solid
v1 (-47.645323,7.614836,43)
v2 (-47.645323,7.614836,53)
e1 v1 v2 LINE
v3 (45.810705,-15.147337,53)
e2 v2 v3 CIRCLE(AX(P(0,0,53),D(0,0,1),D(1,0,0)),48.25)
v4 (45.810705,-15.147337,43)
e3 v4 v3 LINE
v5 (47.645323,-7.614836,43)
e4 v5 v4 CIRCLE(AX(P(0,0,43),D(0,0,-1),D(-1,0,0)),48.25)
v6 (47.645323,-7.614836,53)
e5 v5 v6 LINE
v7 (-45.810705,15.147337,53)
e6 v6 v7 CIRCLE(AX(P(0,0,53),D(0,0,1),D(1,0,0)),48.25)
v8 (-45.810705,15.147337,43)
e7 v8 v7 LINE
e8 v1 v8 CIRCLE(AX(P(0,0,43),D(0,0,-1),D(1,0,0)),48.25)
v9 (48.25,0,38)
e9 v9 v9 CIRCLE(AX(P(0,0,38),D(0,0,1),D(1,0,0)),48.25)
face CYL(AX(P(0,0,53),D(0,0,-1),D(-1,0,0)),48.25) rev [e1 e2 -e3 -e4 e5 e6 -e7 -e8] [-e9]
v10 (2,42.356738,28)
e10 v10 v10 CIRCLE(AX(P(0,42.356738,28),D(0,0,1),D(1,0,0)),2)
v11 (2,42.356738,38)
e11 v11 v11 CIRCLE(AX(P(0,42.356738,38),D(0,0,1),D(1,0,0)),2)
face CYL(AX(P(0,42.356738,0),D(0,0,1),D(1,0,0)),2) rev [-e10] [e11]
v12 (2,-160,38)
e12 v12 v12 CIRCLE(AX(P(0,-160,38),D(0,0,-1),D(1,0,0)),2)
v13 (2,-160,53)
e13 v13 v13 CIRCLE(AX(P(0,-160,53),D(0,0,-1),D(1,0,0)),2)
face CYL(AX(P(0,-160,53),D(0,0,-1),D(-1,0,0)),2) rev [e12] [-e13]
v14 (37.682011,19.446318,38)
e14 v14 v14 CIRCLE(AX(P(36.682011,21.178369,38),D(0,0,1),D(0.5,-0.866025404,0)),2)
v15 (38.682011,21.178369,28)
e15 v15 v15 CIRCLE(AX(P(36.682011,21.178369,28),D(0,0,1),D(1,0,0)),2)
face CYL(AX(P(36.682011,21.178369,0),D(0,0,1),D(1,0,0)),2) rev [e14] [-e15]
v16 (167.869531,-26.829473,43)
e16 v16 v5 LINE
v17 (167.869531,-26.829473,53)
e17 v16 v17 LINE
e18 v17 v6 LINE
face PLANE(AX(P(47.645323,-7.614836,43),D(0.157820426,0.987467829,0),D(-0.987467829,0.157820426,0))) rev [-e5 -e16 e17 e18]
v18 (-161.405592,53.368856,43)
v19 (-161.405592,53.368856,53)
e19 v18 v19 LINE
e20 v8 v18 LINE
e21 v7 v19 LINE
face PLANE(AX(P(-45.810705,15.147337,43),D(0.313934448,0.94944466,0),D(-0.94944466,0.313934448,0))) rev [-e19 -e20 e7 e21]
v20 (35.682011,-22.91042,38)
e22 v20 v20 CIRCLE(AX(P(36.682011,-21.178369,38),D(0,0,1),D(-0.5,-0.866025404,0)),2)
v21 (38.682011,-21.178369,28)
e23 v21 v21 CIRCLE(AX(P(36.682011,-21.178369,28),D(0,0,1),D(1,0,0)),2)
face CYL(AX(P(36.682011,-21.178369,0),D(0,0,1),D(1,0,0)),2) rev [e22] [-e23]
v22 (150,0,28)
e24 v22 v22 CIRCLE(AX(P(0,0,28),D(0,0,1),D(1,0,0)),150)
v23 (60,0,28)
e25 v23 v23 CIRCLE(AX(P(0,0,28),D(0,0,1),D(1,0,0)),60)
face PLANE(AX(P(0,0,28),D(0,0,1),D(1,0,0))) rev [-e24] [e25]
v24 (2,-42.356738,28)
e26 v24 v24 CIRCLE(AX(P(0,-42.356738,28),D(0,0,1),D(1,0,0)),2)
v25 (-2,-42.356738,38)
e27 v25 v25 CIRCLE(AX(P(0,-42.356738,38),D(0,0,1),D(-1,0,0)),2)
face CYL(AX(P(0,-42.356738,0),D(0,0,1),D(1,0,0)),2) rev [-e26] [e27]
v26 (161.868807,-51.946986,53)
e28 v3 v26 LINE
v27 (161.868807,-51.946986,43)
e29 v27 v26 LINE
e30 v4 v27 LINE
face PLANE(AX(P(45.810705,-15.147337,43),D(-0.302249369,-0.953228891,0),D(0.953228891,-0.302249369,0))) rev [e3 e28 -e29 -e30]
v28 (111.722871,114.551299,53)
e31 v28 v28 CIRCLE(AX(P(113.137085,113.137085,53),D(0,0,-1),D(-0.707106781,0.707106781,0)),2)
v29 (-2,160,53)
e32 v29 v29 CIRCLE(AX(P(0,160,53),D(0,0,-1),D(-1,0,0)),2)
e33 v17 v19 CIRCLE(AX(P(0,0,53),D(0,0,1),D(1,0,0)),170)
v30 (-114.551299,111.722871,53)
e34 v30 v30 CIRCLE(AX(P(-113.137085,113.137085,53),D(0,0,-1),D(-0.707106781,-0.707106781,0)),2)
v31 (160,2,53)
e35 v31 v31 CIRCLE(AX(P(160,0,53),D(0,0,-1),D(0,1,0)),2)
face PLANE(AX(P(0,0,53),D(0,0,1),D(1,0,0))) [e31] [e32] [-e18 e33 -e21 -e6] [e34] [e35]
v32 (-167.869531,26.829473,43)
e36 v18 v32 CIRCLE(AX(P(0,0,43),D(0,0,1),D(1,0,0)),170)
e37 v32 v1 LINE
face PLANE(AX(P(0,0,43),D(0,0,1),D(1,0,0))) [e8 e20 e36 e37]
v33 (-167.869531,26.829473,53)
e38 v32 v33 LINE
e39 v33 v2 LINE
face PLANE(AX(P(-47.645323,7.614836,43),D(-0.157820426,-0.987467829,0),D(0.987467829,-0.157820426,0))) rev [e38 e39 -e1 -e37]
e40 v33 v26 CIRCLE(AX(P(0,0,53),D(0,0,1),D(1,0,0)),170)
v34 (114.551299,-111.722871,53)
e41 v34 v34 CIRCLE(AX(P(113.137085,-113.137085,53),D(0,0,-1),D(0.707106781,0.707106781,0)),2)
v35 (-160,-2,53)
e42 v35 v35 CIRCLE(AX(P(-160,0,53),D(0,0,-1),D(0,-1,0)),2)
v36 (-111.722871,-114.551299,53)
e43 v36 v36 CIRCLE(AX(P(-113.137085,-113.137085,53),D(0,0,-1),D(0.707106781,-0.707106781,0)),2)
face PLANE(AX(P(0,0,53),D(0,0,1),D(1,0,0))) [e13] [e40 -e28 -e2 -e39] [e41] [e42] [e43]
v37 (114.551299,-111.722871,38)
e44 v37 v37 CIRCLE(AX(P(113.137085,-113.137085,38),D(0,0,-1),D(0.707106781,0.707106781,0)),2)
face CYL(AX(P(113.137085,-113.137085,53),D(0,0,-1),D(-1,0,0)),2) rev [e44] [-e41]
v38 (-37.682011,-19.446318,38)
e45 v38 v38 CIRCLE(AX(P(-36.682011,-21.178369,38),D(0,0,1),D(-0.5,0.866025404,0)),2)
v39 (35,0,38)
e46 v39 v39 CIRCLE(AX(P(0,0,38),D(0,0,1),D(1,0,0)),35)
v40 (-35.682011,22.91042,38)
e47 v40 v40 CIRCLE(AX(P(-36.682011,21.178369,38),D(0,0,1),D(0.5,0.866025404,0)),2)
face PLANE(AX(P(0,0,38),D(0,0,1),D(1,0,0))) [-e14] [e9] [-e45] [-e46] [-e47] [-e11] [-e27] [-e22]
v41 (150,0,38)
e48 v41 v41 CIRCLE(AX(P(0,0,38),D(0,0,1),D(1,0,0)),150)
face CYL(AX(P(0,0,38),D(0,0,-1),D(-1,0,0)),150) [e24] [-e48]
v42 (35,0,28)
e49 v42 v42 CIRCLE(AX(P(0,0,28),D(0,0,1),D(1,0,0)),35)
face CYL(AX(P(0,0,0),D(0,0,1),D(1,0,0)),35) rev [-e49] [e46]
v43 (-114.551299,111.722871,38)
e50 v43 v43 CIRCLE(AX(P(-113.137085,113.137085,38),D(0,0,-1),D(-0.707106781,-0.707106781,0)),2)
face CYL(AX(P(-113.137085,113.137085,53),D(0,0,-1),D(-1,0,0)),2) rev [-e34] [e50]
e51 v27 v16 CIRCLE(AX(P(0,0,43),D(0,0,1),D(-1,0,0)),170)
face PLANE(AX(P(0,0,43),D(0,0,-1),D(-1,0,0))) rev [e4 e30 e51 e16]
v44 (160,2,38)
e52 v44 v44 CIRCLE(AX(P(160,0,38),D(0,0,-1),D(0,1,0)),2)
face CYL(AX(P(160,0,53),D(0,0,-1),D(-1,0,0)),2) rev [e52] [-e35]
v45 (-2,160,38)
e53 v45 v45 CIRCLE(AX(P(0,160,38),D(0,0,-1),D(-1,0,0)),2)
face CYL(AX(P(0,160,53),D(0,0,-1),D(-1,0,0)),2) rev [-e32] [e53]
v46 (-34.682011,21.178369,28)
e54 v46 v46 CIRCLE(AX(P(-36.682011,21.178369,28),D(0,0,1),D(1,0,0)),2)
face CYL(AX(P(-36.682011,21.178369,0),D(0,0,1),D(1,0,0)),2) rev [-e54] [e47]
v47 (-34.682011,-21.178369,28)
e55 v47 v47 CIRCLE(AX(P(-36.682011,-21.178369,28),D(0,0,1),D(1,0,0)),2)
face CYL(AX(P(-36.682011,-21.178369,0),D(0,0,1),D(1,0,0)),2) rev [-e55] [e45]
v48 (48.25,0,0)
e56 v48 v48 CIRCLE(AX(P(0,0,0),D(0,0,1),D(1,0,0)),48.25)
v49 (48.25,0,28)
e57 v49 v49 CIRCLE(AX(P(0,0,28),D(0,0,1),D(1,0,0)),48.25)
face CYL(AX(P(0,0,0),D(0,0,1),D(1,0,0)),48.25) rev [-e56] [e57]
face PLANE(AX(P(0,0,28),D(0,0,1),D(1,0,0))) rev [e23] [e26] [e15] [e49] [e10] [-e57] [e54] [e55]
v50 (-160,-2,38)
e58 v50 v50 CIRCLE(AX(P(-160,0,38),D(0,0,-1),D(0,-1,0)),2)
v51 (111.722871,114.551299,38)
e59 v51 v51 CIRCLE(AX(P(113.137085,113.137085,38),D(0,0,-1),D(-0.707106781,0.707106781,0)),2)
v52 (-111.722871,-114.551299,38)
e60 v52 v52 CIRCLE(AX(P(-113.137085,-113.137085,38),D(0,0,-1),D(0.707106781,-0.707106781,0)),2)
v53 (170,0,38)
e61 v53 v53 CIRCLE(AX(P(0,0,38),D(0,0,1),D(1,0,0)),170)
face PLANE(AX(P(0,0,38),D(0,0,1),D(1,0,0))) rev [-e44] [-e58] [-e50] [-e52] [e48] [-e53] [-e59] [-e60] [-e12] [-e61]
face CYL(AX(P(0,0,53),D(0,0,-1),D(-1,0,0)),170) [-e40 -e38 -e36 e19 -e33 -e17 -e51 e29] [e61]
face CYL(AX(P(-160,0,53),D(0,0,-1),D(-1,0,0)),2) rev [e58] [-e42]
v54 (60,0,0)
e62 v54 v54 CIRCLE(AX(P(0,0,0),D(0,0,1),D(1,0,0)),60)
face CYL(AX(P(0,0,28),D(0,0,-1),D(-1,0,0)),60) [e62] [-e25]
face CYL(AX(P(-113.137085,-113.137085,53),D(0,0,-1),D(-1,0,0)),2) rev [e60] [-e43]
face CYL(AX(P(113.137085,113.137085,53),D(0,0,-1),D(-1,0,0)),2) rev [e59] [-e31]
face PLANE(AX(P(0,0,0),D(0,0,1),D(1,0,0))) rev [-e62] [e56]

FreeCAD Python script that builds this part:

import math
import FreeCAD as App
import Part
import Sketcher
from FreeCAD import Vector
Q = App.Units.Quantity

doc = App.newDocument("Part")
body = doc.addObject("PartDesign::Body", "Body")

sketch1 = doc.addObject("Sketcher::SketchObject", "Sketch")
body.addObject(sketch1)
sketch1.AttachmentSupport = (doc.XY_Plane, [""])
sketch1.MapMode = "FlatFace"
sketch1.addGeometry(Part.Circle(Vector(0, 0, 0), Vector(0, 0, 1), 60), False)
sketch1.addConstraint([
    Sketcher.Constraint("Coincident", 0, 3, -1, 1),
    Sketcher.Constraint("Diameter", 0, Q("120 mm")),
])
pad1 = doc.addObject("PartDesign::Pad", "Pad")
body.addObject(pad1)
pad1.Profile = sketch1
pad1.Length = 28

sketch2 = doc.addObject("Sketcher::SketchObject", "Sketch001")
body.addObject(sketch2)
sketch2.AttachmentSupport = (doc.XY_Plane, [""])
sketch2.MapMode = "FlatFace"
sketch2.AttachmentOffset = App.Placement(Vector(0, 0, 28), App.Rotation())
sketch2.addGeometry(Part.Circle(Vector(0, 0, 0), Vector(0, 0, 1), 48), False)
sketch2.addConstraint([
    Sketcher.Constraint("Coincident", 0, 3, -1, 1),
    Sketcher.Constraint("Diameter", 0, Q("96.5 mm")),
])
pocket1 = doc.addObject("PartDesign::Pocket", "Pocket")
body.addObject(pocket1)
pocket1.Profile = sketch2
pocket1.Type = "ThroughAll"

sketch3 = doc.addObject("Sketcher::SketchObject", "Sketch002")
body.addObject(sketch3)
sketch3.AttachmentSupport = (doc.XY_Plane, [""])
sketch3.MapMode = "FlatFace"
sketch3.AttachmentOffset = App.Placement(Vector(0, 0, 28), App.Rotation())
sketch3.addGeometry(Part.Circle(Vector(0, 0, 0), Vector(0, 0, 1), 150), False)
sketch3.addConstraint([
    Sketcher.Constraint("Coincident", 0, 3, -1, 1),
    Sketcher.Constraint("Diameter", 0, Q("300 mm")),
])
pad2 = doc.addObject("PartDesign::Pad", "Pad001")
body.addObject(pad2)
pad2.Profile = sketch3
pad2.Length = 10

sketch4 = doc.addObject("Sketcher::SketchObject", "Sketch003")
body.addObject(sketch4)
sketch4.AttachmentSupport = (doc.XY_Plane, [""])
sketch4.MapMode = "FlatFace"
sketch4.AttachmentOffset = App.Placement(Vector(0, 0, 38), App.Rotation())
sketch4.addGeometry(Part.Circle(Vector(0, 0, 0), Vector(0, 0, 1), 35), False)
sketch4.addConstraint([
    Sketcher.Constraint("Coincident", 0, 3, -1, 1),
    Sketcher.Constraint("Diameter", 0, Q("70 mm")),
])
pocket2 = doc.addObject("PartDesign::Pocket", "Pocket001")
body.addObject(pocket2)
pocket2.Profile = sketch4
pocket2.Type = "ThroughAll"

sketch5 = doc.addObject("Sketcher::SketchObject", "Sketch004")
body.addObject(sketch5)
sketch5.AttachmentSupport = (doc.XY_Plane, [""])
sketch5.MapMode = "FlatFace"
sketch5.AttachmentOffset = App.Placement(Vector(0, 0, 38), App.Rotation())
sketch5.addGeometry(Part.Circle(Vector(0, 42.4, 0), Vector(0, 0, 1), 2), False)
sketch5.addConstraint([
    Sketcher.Constraint("PointOnObject", 0, 3, -2),
    Sketcher.Constraint("Diameter", 0, Q("4 mm")),
    Sketcher.Constraint("DistanceY", -1, 1, 0, 3, Q("42.356738 mm")),
])
pocket3 = doc.addObject("PartDesign::Pocket", "Pocket002")
body.addObject(pocket3)
pocket3.Profile = sketch5
pocket3.Type = "ThroughAll"
doc.recompute()

polarpattern = doc.addObject("PartDesign::PolarPattern", "PolarPattern")
body.addObject(polarpattern)
polarpattern.Originals = [pocket3]
polarpattern.Axis = (doc.Z_Axis, [""])
polarpattern.Angle = 360
polarpattern.Occurrences = 6
body.Tip = polarpattern

sketch6 = doc.addObject("Sketcher::SketchObject", "Sketch005")
body.addObject(sketch6)
sketch6.AttachmentSupport = (doc.XY_Plane, [""])
sketch6.MapMode = "FlatFace"
sketch6.AttachmentOffset = App.Placement(Vector(0, 0, 53), App.Rotation())
sketch6.addGeometry([
    Part.Circle(Vector(0, 0, 0), Vector(0, 0, 1), 170),
    Part.Circle(Vector(0, 0, 0), Vector(0, 0, 1), 48),
], False)
sketch6.addConstraint([
    Sketcher.Constraint("Coincident", 0, 3, -1, 1),
    Sketcher.Constraint("Coincident", 1, 3, -1, 1),
    Sketcher.Constraint("Diameter", 0, Q("340 mm")),
    Sketcher.Constraint("Diameter", 1, Q("96.5 mm")),
])
pad3 = doc.addObject("PartDesign::Pad", "Pad002")
body.addObject(pad3)
pad3.Profile = sketch6
pad3.Length = 15
pad3.Reversed = True

sketch7 = doc.addObject("Sketcher::SketchObject", "Sketch006")
body.addObject(sketch7)
sketch7.AttachmentSupport = (doc.XY_Plane, [""])
sketch7.MapMode = "FlatFace"
sketch7.AttachmentOffset = App.Placement(Vector(0, 0, 38), App.Rotation())
sketch7.addGeometry(Part.Circle(Vector(0, 160, 0), Vector(0, 0, 1), 2), False)
sketch7.addConstraint([
    Sketcher.Constraint("PointOnObject", 0, 3, -2),
    Sketcher.Constraint("Diameter", 0, Q("4 mm")),
    Sketcher.Constraint("DistanceY", -1, 1, 0, 3, Q("160 mm")),
])
pocket4 = doc.addObject("PartDesign::Pocket", "Pocket003")
body.addObject(pocket4)
pocket4.Profile = sketch7
pocket4.Type = "ThroughAll"
pocket4.Reversed = True
doc.recompute()

polarpattern2 = doc.addObject("PartDesign::PolarPattern", "PolarPattern001")
body.addObject(polarpattern2)
polarpattern2.Originals = [pocket4]
polarpattern2.Axis = (doc.Z_Axis, [""])
polarpattern2.Angle = 360
polarpattern2.Occurrences = 8
body.Tip = polarpattern2

sketch8 = doc.addObject("Sketcher::SketchObject", "Sketch007")
body.addObject(sketch8)
sketch8.AttachmentSupport = (doc.XY_Plane, [""])
sketch8.MapMode = "FlatFace"
sketch8.AttachmentOffset = App.Placement(Vector(0, 0, 53), App.Rotation())
sketch8.addGeometry([
    Part.LineSegment(Vector(168, -27, 0), Vector(48, -8, 0)),
    Part.ArcOfCircle(Part.Circle(Vector(0, 0, 0), Vector(0, 0, 1), 48), math.radians(-18.3), math.radians(-9.08)),
    Part.LineSegment(Vector(46, -15, 0), Vector(162, -52, 0)),
    Part.ArcOfCircle(Part.Circle(Vector(0, 0, 0), Vector(0, 0, 1), 170), math.radians(-17.79), math.radians(-9.08)),
    Part.LineSegment(Vector(-46, 15, 0), Vector(-161, 53, 0)),
    Part.ArcOfCircle(Part.Circle(Vector(0, 0, 0), Vector(0, 0, 1), 170), math.radians(161.7), math.radians(170.92)),
    Part.LineSegment(Vector(-168, 27, 0), Vector(-48, 8, 0)),
    Part.ArcOfCircle(Part.Circle(Vector(0, 0, 0), Vector(0, 0, 1), 48), math.radians(161.7), math.radians(170.92)),
], False)
sketch8.addConstraint([
    Sketcher.Constraint("Coincident", 0, 2, 1, 2),
    Sketcher.Constraint("Coincident", 1, 1, 2, 1),
    Sketcher.Constraint("Coincident", 2, 2, 3, 1),
    Sketcher.Constraint("Coincident", 3, 2, 0, 1),
    Sketcher.Constraint("Coincident", 4, 2, 5, 1),
    Sketcher.Constraint("Coincident", 5, 2, 6, 1),
    Sketcher.Constraint("Coincident", 6, 2, 7, 2),
    Sketcher.Constraint("Coincident", 7, 1, 4, 1),
    Sketcher.Constraint("Coincident", 1, 3, -1, 1),
    Sketcher.Constraint("Coincident", 3, 3, -1, 1),
    Sketcher.Constraint("Coincident", 5, 3, -1, 1),
    Sketcher.Constraint("Coincident", 7, 3, -1, 1),
    Sketcher.Constraint("Equal", 3, 5),
    Sketcher.Constraint("Equal", 1, 7),
    Sketcher.Constraint("Parallel", 0, 6),
    Sketcher.Constraint("Radius", 3, Q("170 mm")),
    Sketcher.Constraint("Radius", 1, Q("48.25 mm")),
    Sketcher.Constraint("DistanceY", 1, 1, 0, 2, Q("7.532502 mm")),
    Sketcher.Constraint("DistanceY", 6, 2, 7, 1, Q("7.532502 mm")),
    Sketcher.Constraint("DistanceX", -1, 1, 3, 2, Q("167.869531 mm")),
    Sketcher.Constraint("DistanceX", 5, 2, -1, 1, Q("167.869531 mm")),
    Sketcher.Constraint("DistanceY", 2, 2, 1, 1, Q("36.799648 mm")),
    Sketcher.Constraint("DistanceX", 0, 2, 3, 2, Q("120.224208 mm")),
    Sketcher.Constraint("DistanceY", 0, 2, 4, 2, Q("60.983692 mm")),
])
pocket5 = doc.addObject("PartDesign::Pocket", "Pocket004")
body.addObject(pocket5)
pocket5.Profile = sketch8
pocket5.Length = 10

doc.recompute()
